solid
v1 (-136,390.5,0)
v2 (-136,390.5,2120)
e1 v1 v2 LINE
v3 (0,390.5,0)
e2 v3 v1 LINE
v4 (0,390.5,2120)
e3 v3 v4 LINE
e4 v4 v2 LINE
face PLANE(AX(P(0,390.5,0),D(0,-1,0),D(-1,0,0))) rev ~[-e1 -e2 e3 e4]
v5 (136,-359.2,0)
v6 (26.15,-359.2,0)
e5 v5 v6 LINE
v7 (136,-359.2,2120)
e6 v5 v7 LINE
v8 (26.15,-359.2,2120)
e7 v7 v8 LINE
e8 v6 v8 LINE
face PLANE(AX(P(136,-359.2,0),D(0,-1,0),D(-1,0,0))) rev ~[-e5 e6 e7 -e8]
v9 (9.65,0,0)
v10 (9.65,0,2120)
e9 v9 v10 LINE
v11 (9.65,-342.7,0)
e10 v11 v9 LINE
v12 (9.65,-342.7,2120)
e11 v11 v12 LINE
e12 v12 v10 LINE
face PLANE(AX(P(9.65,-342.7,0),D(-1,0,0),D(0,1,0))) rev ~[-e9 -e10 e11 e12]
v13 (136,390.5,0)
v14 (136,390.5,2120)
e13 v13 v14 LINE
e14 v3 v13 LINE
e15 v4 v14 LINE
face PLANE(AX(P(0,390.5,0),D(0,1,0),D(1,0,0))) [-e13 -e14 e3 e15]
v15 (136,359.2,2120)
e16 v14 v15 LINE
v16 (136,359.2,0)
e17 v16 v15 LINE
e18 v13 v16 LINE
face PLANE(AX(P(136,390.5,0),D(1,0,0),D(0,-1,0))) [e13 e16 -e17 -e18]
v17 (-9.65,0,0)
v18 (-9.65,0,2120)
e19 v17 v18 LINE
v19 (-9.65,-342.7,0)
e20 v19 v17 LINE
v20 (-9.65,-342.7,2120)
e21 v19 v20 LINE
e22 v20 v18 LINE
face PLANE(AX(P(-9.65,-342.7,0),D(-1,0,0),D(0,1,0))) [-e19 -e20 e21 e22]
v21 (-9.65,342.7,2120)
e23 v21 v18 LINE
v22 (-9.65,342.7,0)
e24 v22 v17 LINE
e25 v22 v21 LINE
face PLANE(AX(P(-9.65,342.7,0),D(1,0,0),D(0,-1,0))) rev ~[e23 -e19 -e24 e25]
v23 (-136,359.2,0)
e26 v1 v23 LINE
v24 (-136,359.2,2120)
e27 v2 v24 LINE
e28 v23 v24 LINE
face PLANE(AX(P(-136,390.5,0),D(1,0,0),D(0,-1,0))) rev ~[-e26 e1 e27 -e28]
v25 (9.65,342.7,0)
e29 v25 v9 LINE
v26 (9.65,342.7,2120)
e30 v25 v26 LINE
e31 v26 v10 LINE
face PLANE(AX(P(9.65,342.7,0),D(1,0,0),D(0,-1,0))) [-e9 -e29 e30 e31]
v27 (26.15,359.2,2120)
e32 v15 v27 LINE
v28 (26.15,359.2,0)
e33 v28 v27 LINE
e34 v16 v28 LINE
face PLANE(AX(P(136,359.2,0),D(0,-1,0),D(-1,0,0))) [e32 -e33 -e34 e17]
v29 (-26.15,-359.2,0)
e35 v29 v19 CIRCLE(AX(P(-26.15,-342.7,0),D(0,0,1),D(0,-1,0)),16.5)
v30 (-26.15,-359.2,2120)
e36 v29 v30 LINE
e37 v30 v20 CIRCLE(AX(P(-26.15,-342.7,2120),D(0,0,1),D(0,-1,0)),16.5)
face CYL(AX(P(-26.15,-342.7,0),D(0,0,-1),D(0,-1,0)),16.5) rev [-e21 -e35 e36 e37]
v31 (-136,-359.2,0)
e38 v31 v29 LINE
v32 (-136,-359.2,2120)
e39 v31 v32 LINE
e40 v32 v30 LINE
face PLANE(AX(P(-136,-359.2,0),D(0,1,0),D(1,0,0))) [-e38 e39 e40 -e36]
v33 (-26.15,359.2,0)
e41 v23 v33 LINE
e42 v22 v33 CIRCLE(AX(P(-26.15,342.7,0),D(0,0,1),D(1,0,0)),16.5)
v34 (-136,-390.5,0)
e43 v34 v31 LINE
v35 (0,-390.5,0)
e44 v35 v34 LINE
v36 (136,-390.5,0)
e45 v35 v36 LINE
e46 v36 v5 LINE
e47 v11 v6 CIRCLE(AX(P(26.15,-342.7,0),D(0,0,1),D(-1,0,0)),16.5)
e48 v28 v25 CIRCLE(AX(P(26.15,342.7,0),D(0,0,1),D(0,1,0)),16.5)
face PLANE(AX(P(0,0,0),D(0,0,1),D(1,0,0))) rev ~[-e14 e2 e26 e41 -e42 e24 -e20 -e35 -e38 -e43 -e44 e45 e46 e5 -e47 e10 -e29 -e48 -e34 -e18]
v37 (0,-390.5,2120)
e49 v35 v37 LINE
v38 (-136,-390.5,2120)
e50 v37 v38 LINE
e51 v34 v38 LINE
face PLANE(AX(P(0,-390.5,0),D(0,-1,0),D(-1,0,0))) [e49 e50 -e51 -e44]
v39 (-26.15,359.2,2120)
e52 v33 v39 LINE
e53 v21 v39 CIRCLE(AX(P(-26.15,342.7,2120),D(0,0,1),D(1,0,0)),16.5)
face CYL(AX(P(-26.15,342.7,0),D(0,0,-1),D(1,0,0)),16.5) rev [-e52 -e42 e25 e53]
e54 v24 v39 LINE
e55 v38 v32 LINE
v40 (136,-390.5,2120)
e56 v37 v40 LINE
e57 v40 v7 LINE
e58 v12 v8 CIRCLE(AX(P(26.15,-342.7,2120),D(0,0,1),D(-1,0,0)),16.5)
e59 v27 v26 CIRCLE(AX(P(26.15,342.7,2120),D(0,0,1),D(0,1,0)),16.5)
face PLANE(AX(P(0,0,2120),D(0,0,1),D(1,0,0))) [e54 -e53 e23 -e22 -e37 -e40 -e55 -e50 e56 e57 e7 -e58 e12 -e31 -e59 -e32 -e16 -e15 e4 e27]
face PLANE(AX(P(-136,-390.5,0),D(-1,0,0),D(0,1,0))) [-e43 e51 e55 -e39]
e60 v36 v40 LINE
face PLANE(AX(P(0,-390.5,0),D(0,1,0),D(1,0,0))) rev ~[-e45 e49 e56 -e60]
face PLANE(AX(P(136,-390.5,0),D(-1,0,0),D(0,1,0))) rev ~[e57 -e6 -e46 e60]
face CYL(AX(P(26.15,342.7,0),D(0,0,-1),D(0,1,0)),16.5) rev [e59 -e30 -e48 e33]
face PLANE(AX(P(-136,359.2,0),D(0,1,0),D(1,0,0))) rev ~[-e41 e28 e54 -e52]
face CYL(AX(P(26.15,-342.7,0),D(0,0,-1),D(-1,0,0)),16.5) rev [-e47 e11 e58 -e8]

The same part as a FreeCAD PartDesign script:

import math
import FreeCAD as App
import Part
import Sketcher
from FreeCAD import Vector

doc = App.newDocument("Part")
body = doc.addObject("PartDesign::Body", "Body")

sketch1 = body.newObject("Sketcher::SketchObject", "Sketch")
sketch1.AttachmentSupport = (doc.getObject("XY_Plane"), [""])
sketch1.MapMode = "FlatFace"
sketch1.addGeometry([
    Part.LineSegment(Vector(-136, -359, 0), Vector(-136, -390, 0)),
    Part.LineSegment(Vector(-136, -390, 0), Vector(136, -390, 0)),
    Part.LineSegment(Vector(136, -390, 0), Vector(136, -359, 0)),
    Part.LineSegment(Vector(136, -359, 0), Vector(26, -359, 0)),
    Part.ArcOfCircle(Part.Circle(Vector(26, -343, 0), Vector(0, 0, 1), 16), math.radians(180), math.radians(270)),
    Part.LineSegment(Vector(10, -343, 0), Vector(10, 343, 0)),
    Part.ArcOfCircle(Part.Circle(Vector(26, 343, 0), Vector(0, 0, 1), 16), math.radians(90), math.radians(180)),
    Part.LineSegment(Vector(26, 359, 0), Vector(136, 359, 0)),
    Part.LineSegment(Vector(136, 359, 0), Vector(136, 390, 0)),
    Part.LineSegment(Vector(136, 390, 0), Vector(-136, 390, 0)),
    Part.LineSegment(Vector(-136, 390, 0), Vector(-136, 359, 0)),
    Part.LineSegment(Vector(-136, 359, 0), Vector(-26, 359, 0)),
    Part.ArcOfCircle(Part.Circle(Vector(-26, 343, 0), Vector(0, 0, 1), 16), math.radians(0), math.radians(90)),
    Part.LineSegment(Vector(-10, 343, 0), Vector(-10, -343, 0)),
    Part.ArcOfCircle(Part.Circle(Vector(-26, -343, 0), Vector(0, 0, 1), 16), math.radians(-90), math.radians(0)),
    Part.LineSegment(Vector(-26, -359, 0), Vector(-136, -359, 0)),
], False)
sketch1.addConstraint([
    Sketcher.Constraint("Coincident", 0, 2, 1, 1),
    Sketcher.Constraint("Coincident", 1, 2, 2, 1),
    Sketcher.Constraint("Coincident", 2, 2, 3, 1),
    Sketcher.Constraint("Tangent", 3, 2, 4, 2),
    Sketcher.Constraint("Tangent", 4, 1, 5, 1),
    Sketcher.Constraint("Tangent", 5, 2, 6, 2),
    Sketcher.Constraint("Tangent", 6, 1, 7, 1),
    Sketcher.Constraint("Coincident", 7, 2, 8, 1),
    Sketcher.Constraint("Coincident", 8, 2, 9, 1),
    Sketcher.Constraint("Coincident", 9, 2, 10, 1),
    Sketcher.Constraint("Coincident", 10, 2, 11, 1),
    Sketcher.Constraint("Tangent", 11, 2, 12, 2),
    Sketcher.Constraint("Tangent", 12, 1, 13, 1),
    Sketcher.Constraint("Tangent", 13, 2, 14, 2),
    Sketcher.Constraint("Tangent", 14, 1, 15, 1),
    Sketcher.Constraint("Coincident", 15, 2, 0, 1),
    Sketcher.Constraint("Vertical", 0),
    Sketcher.Constraint("Horizontal", 1),
    Sketcher.Constraint("Vertical", 2),
    Sketcher.Constraint("Horizontal", 3),
    Sketcher.Constraint("Vertical", 5),
    Sketcher.Constraint("Horizontal", 7),
    Sketcher.Constraint("Vertical", 8),
    Sketcher.Constraint("Horizontal", 9),
    Sketcher.Constraint("Vertical", 10),
    Sketcher.Constraint("Horizontal", 11),
    Sketcher.Constraint("Vertical", 13),
    Sketcher.Constraint("Horizontal", 15),
    Sketcher.Constraint("Equal", 4, 6),
    Sketcher.Constraint("Equal", 6, 12),
    Sketcher.Constraint("Equal", 12, 14),
    Sketcher.Constraint("Symmetric", 4, 3, 12, 3, -1, 1),
    Sketcher.Constraint("Symmetric", 0, 2, 8, 2, -1, 1),
    Sketcher.Constraint("Symmetric", 7, 2, 10, 2, -2),
    Sketcher.Constraint("Symmetric", 2, 2, 15, 2, -2),
    Sketcher.Constraint("Radius", 4, 16.5),
    Sketcher.Constraint("DistanceY", 0, 2, 0, 1, 31.3),
    Sketcher.Constraint("DistanceX", 0, 2, -1, 1, 136.0),
    Sketcher.Constraint("DistanceY", 0, 2, -1, 1, 390.5),
    Sketcher.Constraint("DistanceX", -1, 1, 4, 1, 9.65),
])
pad1 = body.newObject("PartDesign::Pad", "Pad")
pad1.Profile = sketch1
pad1.Length = 2120

doc.recompute()
